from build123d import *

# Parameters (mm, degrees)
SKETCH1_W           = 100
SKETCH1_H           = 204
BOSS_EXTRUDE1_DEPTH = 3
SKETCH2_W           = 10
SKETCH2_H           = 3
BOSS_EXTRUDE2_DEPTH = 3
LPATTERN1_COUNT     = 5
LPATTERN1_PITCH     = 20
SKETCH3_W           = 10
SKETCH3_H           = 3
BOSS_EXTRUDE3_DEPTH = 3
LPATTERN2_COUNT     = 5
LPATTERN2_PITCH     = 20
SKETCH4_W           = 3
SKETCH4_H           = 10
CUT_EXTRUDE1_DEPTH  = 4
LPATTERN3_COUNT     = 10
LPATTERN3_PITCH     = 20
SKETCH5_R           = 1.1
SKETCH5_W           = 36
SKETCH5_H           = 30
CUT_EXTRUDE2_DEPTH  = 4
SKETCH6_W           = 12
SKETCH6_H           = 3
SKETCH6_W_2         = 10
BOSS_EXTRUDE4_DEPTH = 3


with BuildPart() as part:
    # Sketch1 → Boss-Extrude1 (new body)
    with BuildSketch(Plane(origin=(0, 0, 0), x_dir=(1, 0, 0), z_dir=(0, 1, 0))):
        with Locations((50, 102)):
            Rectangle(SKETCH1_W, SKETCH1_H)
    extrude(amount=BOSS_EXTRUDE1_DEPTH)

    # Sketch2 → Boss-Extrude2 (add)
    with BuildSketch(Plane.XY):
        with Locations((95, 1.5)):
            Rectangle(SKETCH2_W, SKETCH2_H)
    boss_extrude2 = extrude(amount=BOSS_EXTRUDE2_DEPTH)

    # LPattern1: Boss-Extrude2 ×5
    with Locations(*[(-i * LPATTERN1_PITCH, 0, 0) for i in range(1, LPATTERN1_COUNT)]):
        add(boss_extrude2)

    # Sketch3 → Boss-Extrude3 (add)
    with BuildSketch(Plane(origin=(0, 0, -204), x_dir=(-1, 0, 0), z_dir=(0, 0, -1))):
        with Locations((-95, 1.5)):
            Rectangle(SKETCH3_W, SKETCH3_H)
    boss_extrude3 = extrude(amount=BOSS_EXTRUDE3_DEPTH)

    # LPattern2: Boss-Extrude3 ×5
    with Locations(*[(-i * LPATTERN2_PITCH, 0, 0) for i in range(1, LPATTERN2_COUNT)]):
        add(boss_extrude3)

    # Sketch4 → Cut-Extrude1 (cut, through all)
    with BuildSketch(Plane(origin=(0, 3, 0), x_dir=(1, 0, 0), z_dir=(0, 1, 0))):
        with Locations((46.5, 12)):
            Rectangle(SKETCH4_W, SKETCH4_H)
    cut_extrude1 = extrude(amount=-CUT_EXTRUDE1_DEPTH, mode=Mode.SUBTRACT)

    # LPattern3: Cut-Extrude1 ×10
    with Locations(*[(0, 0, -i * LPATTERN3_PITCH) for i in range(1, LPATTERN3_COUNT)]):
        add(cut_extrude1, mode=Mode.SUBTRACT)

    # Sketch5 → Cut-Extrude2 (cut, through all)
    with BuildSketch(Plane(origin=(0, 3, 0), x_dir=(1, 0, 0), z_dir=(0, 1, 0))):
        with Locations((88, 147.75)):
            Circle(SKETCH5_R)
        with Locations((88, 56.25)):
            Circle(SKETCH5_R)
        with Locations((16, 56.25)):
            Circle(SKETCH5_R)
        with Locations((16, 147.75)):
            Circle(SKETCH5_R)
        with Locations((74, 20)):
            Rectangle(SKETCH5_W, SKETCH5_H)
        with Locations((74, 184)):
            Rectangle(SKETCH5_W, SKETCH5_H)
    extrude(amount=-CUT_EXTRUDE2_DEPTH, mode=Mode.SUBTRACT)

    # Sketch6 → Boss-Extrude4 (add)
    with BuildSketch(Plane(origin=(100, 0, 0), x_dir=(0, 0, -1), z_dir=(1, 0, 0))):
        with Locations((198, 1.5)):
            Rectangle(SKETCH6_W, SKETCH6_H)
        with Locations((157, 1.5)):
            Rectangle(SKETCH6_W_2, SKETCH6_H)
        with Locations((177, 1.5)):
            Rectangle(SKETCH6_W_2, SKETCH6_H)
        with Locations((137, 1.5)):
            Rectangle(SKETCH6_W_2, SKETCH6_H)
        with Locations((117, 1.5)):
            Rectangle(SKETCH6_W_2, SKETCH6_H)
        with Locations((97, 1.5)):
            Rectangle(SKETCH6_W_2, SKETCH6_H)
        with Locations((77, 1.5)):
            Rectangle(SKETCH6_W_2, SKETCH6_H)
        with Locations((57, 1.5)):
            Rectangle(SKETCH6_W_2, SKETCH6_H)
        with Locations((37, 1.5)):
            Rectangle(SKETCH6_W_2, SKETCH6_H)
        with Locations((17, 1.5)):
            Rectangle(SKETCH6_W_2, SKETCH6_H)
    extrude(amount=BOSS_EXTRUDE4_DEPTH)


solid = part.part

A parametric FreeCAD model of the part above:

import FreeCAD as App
import Part
import Sketcher

V = App.Vector
Q = App.Units.Quantity

doc = App.newDocument("Part")
body = doc.addObject("PartDesign::Body", "Body")

# Sketch on XZ plane
sketch1 = body.newObject("Sketcher::SketchObject", "Sketch")
sketch1.AttachmentSupport = (doc.getObject("XZ_Plane"), [""])
sketch1.MapMode = "FlatFace"
sketch1.addGeometry([
    Part.LineSegment(V(0, -204, 0), V(0, 0, 0)),
    Part.LineSegment(V(0, 0, 0), V(100, 0, 0)),
    Part.LineSegment(V(100, 0, 0), V(100, -204, 0)),
    Part.LineSegment(V(100, -204, 0), V(0, -204, 0)),
], False)
sketch1.addConstraint([
    Sketcher.Constraint("Coincident", 0, 2, 1, 1),
    Sketcher.Constraint("Coincident", 1, 2, 2, 1),
    Sketcher.Constraint("Coincident", 2, 2, 3, 1),
    Sketcher.Constraint("Coincident", 3, 2, 0, 1),
    Sketcher.Constraint("Vertical", 0),
    Sketcher.Constraint("Horizontal", 1),
    Sketcher.Constraint("Vertical", 2),
    Sketcher.Constraint("Horizontal", 3),
    Sketcher.Constraint("Coincident", 0, 2, -1, 1),
    Sketcher.Constraint("DistanceX", 1, 1, 1, 2, Q("100 mm")),
    Sketcher.Constraint("DistanceY", 0, 1, 0, 2, Q("204 mm")),
])
pad1 = body.newObject("PartDesign::Pad", "Pad")
pad1.Profile = sketch1
pad1.Length = 3
pad1.Reversed = True

# Sketch on XY plane
sketch2 = body.newObject("Sketcher::SketchObject", "Sketch001")
sketch2.AttachmentSupport = (doc.getObject("XY_Plane"), [""])
sketch2.MapMode = "FlatFace"
sketch2.addGeometry([
    Part.LineSegment(V(90, 3, 0), V(90, 0, 0)),
    Part.LineSegment(V(90, 0, 0), V(100, 0, 0)),
    Part.LineSegment(V(100, 0, 0), V(100, 3, 0)),
    Part.LineSegment(V(100, 3, 0), V(90, 3, 0)),
], False)
sketch2.addConstraint([
    Sketcher.Constraint("Coincident", 0, 2, 1, 1),
    Sketcher.Constraint("Coincident", 1, 2, 2, 1),
    Sketcher.Constraint("Coincident", 2, 2, 3, 1),
    Sketcher.Constraint("Coincident", 3, 2, 0, 1),
    Sketcher.Constraint("Vertical", 0),
    Sketcher.Constraint("Horizontal", 1),
    Sketcher.Constraint("Vertical", 2),
    Sketcher.Constraint("Horizontal", 3),
    Sketcher.Constraint("PointOnObject", 0, 2, -1),
    Sketcher.Constraint("DistanceX", 1, 1, 1, 2, Q("10 mm")),
    Sketcher.Constraint("DistanceY", 0, 2, 0, 1, Q("3 mm")),
    Sketcher.Constraint("DistanceX", -1, 1, 0, 2, Q("90 mm")),
])
pad2 = body.newObject("PartDesign::Pad", "Pad001")
pad2.Profile = sketch2
pad2.Length = 3
doc.recompute()

linearpattern = body.newObject("PartDesign::LinearPattern", "LinearPattern")
linearpattern.Originals = [pad2]
linearpattern.Direction = (doc.getObject("X_Axis"), [""])
linearpattern.Mode = "offset"
linearpattern.Offset = 20
linearpattern.Occurrences = 5
linearpattern.Reversed = True
body.Tip = linearpattern

# Sketch on XY plane
sketch3 = body.newObject("Sketcher::SketchObject", "Sketch002")
sketch3.AttachmentSupport = (doc.getObject("XY_Plane"), [""])
sketch3.MapMode = "FlatFace"
sketch3.AttachmentOffset = App.Placement(V(0, 0, -204), App.Rotation())
sketch3.addGeometry([
    Part.LineSegment(V(100, 3, 0), V(100, 0, 0)),
    Part.LineSegment(V(100, 0, 0), V(90, 0, 0)),
    Part.LineSegment(V(90, 0, 0), V(90, 3, 0)),
    Part.LineSegment(V(90, 3, 0), V(100, 3, 0)),
], False)
sketch3.addConstraint([
    Sketcher.Constraint("Coincident", 0, 2, 1, 1),
    Sketcher.Constraint("Coincident", 1, 2, 2, 1),
    Sketcher.Constraint("Coincident", 2, 2, 3, 1),
    Sketcher.Constraint("Coincident", 3, 2, 0, 1),
    Sketcher.Constraint("Vertical", 0),
    Sketcher.Constraint("Horizontal", 1),
    Sketcher.Constraint("Vertical", 2),
    Sketcher.Constraint("Horizontal", 3),
    Sketcher.Constraint("PointOnObject", 0, 2, -1),
    Sketcher.Constraint("DistanceX", 1, 2, 1, 1, Q("10 mm")),
    Sketcher.Constraint("DistanceY", 0, 2, 0, 1, Q("3 mm")),
    Sketcher.Constraint("DistanceX", -1, 1, 0, 2, Q("100 mm")),
])
pad3 = body.newObject("PartDesign::Pad", "Pad002")
pad3.Profile = sketch3
pad3.Length = 3
pad3.Reversed = True
doc.recompute()

linearpattern2 = body.newObject("PartDesign::LinearPattern", "LinearPattern001")
linearpattern2.Originals = [pad3]
linearpattern2.Direction = (doc.getObject("X_Axis"), [""])
linearpattern2.Mode = "offset"
linearpattern2.Offset = 20
linearpattern2.Occurrences = 5
linearpattern2.Reversed = True
body.Tip = linearpattern2

# Sketch on XZ plane
sketch4 = body.newObject("Sketcher::SketchObject", "Sketch003")
sketch4.AttachmentSupport = (doc.getObject("XZ_Plane"), [""])
sketch4.MapMode = "FlatFace"
sketch4.AttachmentOffset = App.Placement(V(0, 0, -3), App.Rotation())
sketch4.addGeometry([
    Part.LineSegment(V(45, -17, 0), V(45, -7, 0)),
    Part.LineSegment(V(45, -7, 0), V(48, -7, 0)),
    Part.LineSegment(V(48, -7, 0), V(48, -17, 0)),
    Part.LineSegment(V(48, -17, 0), V(45, -17, 0)),
], False)
sketch4.addConstraint([
    Sketcher.Constraint("Coincident", 0, 2, 1, 1),
    Sketcher.Constraint("Coincident", 1, 2, 2, 1),
    Sketcher.Constraint("Coincident", 2, 2, 3, 1),
    Sketcher.Constraint("Coincident", 3, 2, 0, 1),
    Sketcher.Constraint("Vertical", 0),
    Sketcher.Constraint("Horizontal", 1),
    Sketcher.Constraint("Vertical", 2),
    Sketcher.Constraint("Horizontal", 3),
    Sketcher.Constraint("DistanceX", 1, 1, 1, 2, Q("3 mm")),
    Sketcher.Constraint("DistanceY", 0, 1, 0, 2, Q("10 mm")),
    Sketcher.Constraint("DistanceX", -1, 1, 0, 2, Q("45 mm")),
    Sketcher.Constraint("DistanceY", 0, 2, -1, 1, Q("7 mm")),
])
pocket1 = body.newObject("PartDesign::Pocket", "Pocket")
pocket1.Profile = sketch4
pocket1.Type = "ThroughAll"
pocket1.Reversed = True
doc.recompute()

linearpattern3 = body.newObject("PartDesign::LinearPattern", "LinearPattern002")
linearpattern3.Originals = [pocket1]
linearpattern3.Direction = (doc.getObject("Z_Axis"), [""])
linearpattern3.Mode = "offset"
linearpattern3.Offset = 20
linearpattern3.Occurrences = 10
linearpattern3.Reversed = True
body.Tip = linearpattern3

# Sketch on XZ plane
sketch5 = body.newObject("Sketcher::SketchObject", "Sketch004")
sketch5.AttachmentSupport = (doc.getObject("XZ_Plane"), [""])
sketch5.MapMode = "FlatFace"
sketch5.AttachmentOffset = App.Placement(V(0, 0, -3), App.Rotation())
sketch5.addGeometry([
    Part.Circle(V(88, -147.8, 0), V(0, 0, 1), 1.1),  # 0
    Part.Circle(V(88, -56.2, 0), V(0, 0, 1), 1.1),  # 1
    Part.Circle(V(16, -56.2, 0), V(0, 0, 1), 1.1),  # 2
    Part.Circle(V(16, -147.8, 0), V(0, 0, 1), 1.1),  # 3
    Part.LineSegment(V(56, -35, 0), V(56, -5, 0)),  # 4
    Part.LineSegment(V(56, -5, 0), V(92, -5, 0)),  # 5
    Part.LineSegment(V(92, -5, 0), V(92, -35, 0)),  # 6
    Part.LineSegment(V(92, -35, 0), V(56, -35, 0)),  # 7
    Part.LineSegment(V(56, -199, 0), V(56, -169, 0)),  # 8
    Part.LineSegment(V(56, -169, 0), V(92, -169, 0)),  # 9
    Part.LineSegment(V(92, -169, 0), V(92, -199, 0)),  # 10
    Part.LineSegment(V(92, -199, 0), V(56, -199, 0)),  # 11
], False)
sketch5.addConstraint([
    Sketcher.Constraint("Coincident", 4, 2, 5, 1),
    Sketcher.Constraint("Coincident", 5, 2, 6, 1),
    Sketcher.Constraint("Coincident", 6, 2, 7, 1),
    Sketcher.Constraint("Coincident", 7, 2, 4, 1),
    Sketcher.Constraint("Coincident", 8, 2, 9, 1),
    Sketcher.Constraint("Coincident", 9, 2, 10, 1),
    Sketcher.Constraint("Coincident", 10, 2, 11, 1),
    Sketcher.Constraint("Coincident", 11, 2, 8, 1),
    Sketcher.Constraint("Vertical", 4),
    Sketcher.Constraint("Horizontal", 5),
    Sketcher.Constraint("Vertical", 6),
    Sketcher.Constraint("Horizontal", 7),
    Sketcher.Constraint("Vertical", 8),
    Sketcher.Constraint("Horizontal", 9),
    Sketcher.Constraint("Vertical", 10),
    Sketcher.Constraint("Horizontal", 11),
    Sketcher.Constraint("Equal", 0, 1),
    Sketcher.Constraint("Equal", 1, 2),
    Sketcher.Constraint("Equal", 2, 3),
    Sketcher.Constraint("Horizontal", 1, 3, 2, 3),
    Sketcher.Constraint("Horizontal", 0, 3, 3, 3),
    Sketcher.Constraint("Vertical", 0, 3, 1, 3),
    Sketcher.Constraint("Vertical", 2, 3, 3, 3),
    Sketcher.Constraint("Vertical", 7, 2, 8, 2),
    Sketcher.Constraint("Vertical", 6, 2, 9, 2),
    Sketcher.Constraint("Equal", 6, 8),
    Sketcher.Constraint("Diameter", 0, Q("2.2 mm")),
    Sketcher.Constraint("DistanceX", 5, 1, 5, 2, Q("36 mm")),
    Sketcher.Constraint("DistanceY", 4, 1, 4, 2, Q("30 mm")),
    Sketcher.Constraint("DistanceX", -1, 1, 0, 3, Q("88 mm")),
    Sketcher.Constraint("DistanceX", -1, 1, 2, 3, Q("16 mm")),
    Sketcher.Constraint("DistanceX", -1, 1, 4, 2, Q("56 mm")),
    Sketcher.Constraint("DistanceY", 4, 2, -1, 1, Q("5 mm")),
    Sketcher.Constraint("DistanceY", 8, 2, -1, 1, Q("169 mm")),
    Sketcher.Constraint("DistanceY", 0, 3, 1, 3, Q("91.5 mm")),
    Sketcher.Constraint("DistanceY", 0, 3, -1, 1, Q("147.75 mm")),
])
pocket2 = body.newObject("PartDesign::Pocket", "Pocket001")
pocket2.Profile = sketch5
pocket2.Type = "ThroughAll"
pocket2.Reversed = True

# Sketch on YZ plane
sketch6 = body.newObject("Sketcher::SketchObject", "Sketch005")
sketch6.AttachmentSupport = (doc.getObject("YZ_Plane"), [""])
sketch6.MapMode = "FlatFace"
sketch6.AttachmentOffset = App.Placement(V(0, 0, 100), App.Rotation())
sketch6.addGeometry([
    Part.LineSegment(V(3, -192, 0), V(0, -192, 0)),  # 0
    Part.LineSegment(V(0, -192, 0), V(0, -204, 0)),  # 1
    Part.LineSegment(V(0, -204, 0), V(3, -204, 0)),  # 2
    Part.LineSegment(V(3, -204, 0), V(3, -192, 0)),  # 3
    Part.LineSegment(V(3, -152, 0), V(0, -152, 0)),  # 4
    Part.LineSegment(V(0, -152, 0), V(0, -162, 0)),  # 5
    Part.LineSegment(V(0, -162, 0), V(3, -162, 0)),  # 6
    Part.LineSegment(V(3, -162, 0), V(3, -152, 0)),  # 7
    Part.LineSegment(V(3, -172, 0), V(0, -172, 0)),  # 8
    Part.LineSegment(V(0, -172, 0), V(0, -182, 0)),  # 9
    Part.LineSegment(V(0, -182, 0), V(3, -182, 0)),  # 10
    Part.LineSegment(V(3, -182, 0), V(3, -172, 0)),  # 11
    Part.LineSegment(V(3, -132, 0), V(0, -132, 0)),  # 12
    Part.LineSegment(V(0, -132, 0), V(0, -142, 0)),  # 13
    Part.LineSegment(V(0, -142, 0), V(3, -142, 0)),  # 14
    Part.LineSegment(V(3, -142, 0), V(3, -132, 0)),  # 15
    Part.LineSegment(V(3, -112, 0), V(0, -112, 0)),  # 16
    Part.LineSegment(V(0, -112, 0), V(0, -122, 0)),  # 17
    Part.LineSegment(V(0, -122, 0), V(3, -122, 0)),  # 18
    Part.LineSegment(V(3, -122, 0), V(3, -112, 0)),  # 19
    Part.LineSegment(V(3, -92, 0), V(0, -92, 0)),  # 20
    Part.LineSegment(V(0, -92, 0), V(0, -102, 0)),  # 21
    Part.LineSegment(V(0, -102, 0), V(3, -102, 0)),  # 22
    Part.LineSegment(V(3, -102, 0), V(3, -92, 0)),  # 23
    Part.LineSegment(V(3, -72, 0), V(0, -72, 0)),  # 24
    Part.LineSegment(V(0, -72, 0), V(0, -82, 0)),  # 25
    Part.LineSegment(V(0, -82, 0), V(3, -82, 0)),  # 26
    Part.LineSegment(V(3, -82, 0), V(3, -72, 0)),  # 27
    Part.LineSegment(V(3, -52, 0), V(0, -52, 0)),  # 28
    Part.LineSegment(V(0, -52, 0), V(0, -62, 0)),  # 29
    Part.LineSegment(V(0, -62, 0), V(3, -62, 0)),  # 30
    Part.LineSegment(V(3, -62, 0), V(3, -52, 0)),  # 31
    Part.LineSegment(V(3, -32, 0), V(0, -32, 0)),  # 32
    Part.LineSegment(V(0, -32, 0), V(0, -42, 0)),  # 33
    Part.LineSegment(V(0, -42, 0), V(3, -42, 0)),  # 34
    Part.LineSegment(V(3, -42, 0), V(3, -32, 0)),  # 35
    Part.LineSegment(V(3, -12, 0), V(0, -12, 0)),  # 36
    Part.LineSegment(V(0, -12, 0), V(0, -22, 0)),  # 37
    Part.LineSegment(V(0, -22, 0), V(3, -22, 0)),  # 38
    Part.LineSegment(V(3, -22, 0), V(3, -12, 0)),  # 39
], False)
sketch6.addConstraint([
    Sketcher.Constraint("Coincident", 0, 2, 1, 1),
    Sketcher.Constraint("Coincident", 1, 2, 2, 1),
    Sketcher.Constraint("Coincident", 2, 2, 3, 1),
    Sketcher.Constraint("Coincident", 3, 2, 0, 1),
    Sketcher.Constraint("Coincident", 4, 2, 5, 1),
    Sketcher.Constraint("Coincident", 5, 2, 6, 1),
    Sketcher.Constraint("Coincident", 6, 2, 7, 1),
    Sketcher.Constraint("Coincident", 7, 2, 4, 1),
    Sketcher.Constraint("Coincident", 8, 2, 9, 1),
    Sketcher.Constraint("Coincident", 9, 2, 10, 1),
    Sketcher.Constraint("Coincident", 10, 2, 11, 1),
    Sketcher.Constraint("Coincident", 11, 2, 8, 1),
    Sketcher.Constraint("Coincident", 12, 2, 13, 1),
    Sketcher.Constraint("Coincident", 13, 2, 14, 1),
    Sketcher.Constraint("Coincident", 14, 2, 15, 1),
    Sketcher.Constraint("Coincident", 15, 2, 12, 1),
    Sketcher.Constraint("Coincident", 16, 2, 17, 1),
    Sketcher.Constraint("Coincident", 17, 2, 18, 1),
    Sketcher.Constraint("Coincident", 18, 2, 19, 1),
    Sketcher.Constraint("Coincident", 19, 2, 16, 1),
    Sketcher.Constraint("Coincident", 20, 2, 21, 1),
    Sketcher.Constraint("Coincident", 21, 2, 22, 1),
    Sketcher.Constraint("Coincident", 22, 2, 23, 1),
    Sketcher.Constraint("Coincident", 23, 2, 20, 1),
    Sketcher.Constraint("Coincident", 24, 2, 25, 1),
    Sketcher.Constraint("Coincident", 25, 2, 26, 1),
    Sketcher.Constraint("Coincident", 26, 2, 27, 1),
    Sketcher.Constraint("Coincident", 27, 2, 24, 1),
    Sketcher.Constraint("Coincident", 28, 2, 29, 1),
    Sketcher.Constraint("Coincident", 29, 2, 30, 1),
    Sketcher.Constraint("Coincident", 30, 2, 31, 1),
    Sketcher.Constraint("Coincident", 31, 2, 28, 1),
    Sketcher.Constraint("Coincident", 32, 2, 33, 1),
    Sketcher.Constraint("Coincident", 33, 2, 34, 1),
    Sketcher.Constraint("Coincident", 34, 2, 35, 1),
    Sketcher.Constraint("Coincident", 35, 2, 32, 1),
    Sketcher.Constraint("Coincident", 36, 2, 37, 1),
    Sketcher.Constraint("Coincident", 37, 2, 38, 1),
    Sketcher.Constraint("Coincident", 38, 2, 39, 1),
    Sketcher.Constraint("Coincident", 39, 2, 36, 1),
    Sketcher.Constraint("Horizontal", 0),
    Sketcher.Constraint("Vertical", 1),
    Sketcher.Constraint("Horizontal", 2),
    Sketcher.Constraint("Vertical", 3),
    Sketcher.Constraint("Horizontal", 4),
    Sketcher.Constraint("Vertical", 5),
    Sketcher.Constraint("Horizontal", 6),
    Sketcher.Constraint("Vertical", 7),
    Sketcher.Constraint("Horizontal", 8),
    Sketcher.Constraint("Vertical", 9),
    Sketcher.Constraint("Horizontal", 10),
    Sketcher.Constraint("Vertical", 11),
    Sketcher.Constraint("Horizontal", 12),
    Sketcher.Constraint("Vertical", 13),
    Sketcher.Constraint("Horizontal", 14),
    Sketcher.Constraint("Vertical", 15),
    Sketcher.Constraint("Horizontal", 16),
    Sketcher.Constraint("Vertical", 17),
    Sketcher.Constraint("Horizontal", 18),
    Sketcher.Constraint("Vertical", 19),
    Sketcher.Constraint("Horizontal", 20),
    Sketcher.Constraint("Vertical", 21),
    Sketcher.Constraint("Horizontal", 22),
    Sketcher.Constraint("Vertical", 23),
    Sketcher.Constraint("Horizontal", 24),
    Sketcher.Constraint("Vertical", 25),
    Sketcher.Constraint("Horizontal", 26),
    Sketcher.Constraint("Vertical", 27),
    Sketcher.Constraint("Horizontal", 28),
    Sketcher.Constraint("Vertical", 29),
    Sketcher.Constraint("Horizontal", 30),
    Sketcher.Constraint("Vertical", 31),
    Sketcher.Constraint("Horizontal", 32),
    Sketcher.Constraint("Vertical", 33),
    Sketcher.Constraint("Horizontal", 34),
    Sketcher.Constraint("Vertical", 35),
    Sketcher.Constraint("Horizontal", 36),
    Sketcher.Constraint("Vertical", 37),
    Sketcher.Constraint("Horizontal", 38),
    Sketcher.Constraint("Vertical", 39),
    Sketcher.Constraint("PointOnObject", 0, 2, -2),
    Sketcher.Constraint("PointOnObject", 4, 2, -2),
    Sketcher.Constraint("PointOnObject", 8, 2, -2),
    Sketcher.Constraint("PointOnObject", 12, 2, -2),
    Sketcher.Constraint("PointOnObject", 16, 2, -2),
    Sketcher.Constraint("PointOnObject", 20, 2, -2),
    Sketcher.Constraint("PointOnObject", 24, 2, -2),
    Sketcher.Constraint("PointOnObject", 28, 2, -2),
    Sketcher.Constraint("PointOnObject", 32, 2, -2),
    Sketcher.Constraint("PointOnObject", 36, 2, -2),
    Sketcher.Constraint("Vertical", 3, 2, 6, 2),
    Sketcher.Constraint("Vertical", 7, 2, 10, 2),
    Sketcher.Constraint("Vertical", 11, 2, 14, 2),
    Sketcher.Constraint("Vertical", 15, 2, 18, 2),
    Sketcher.Constraint("Vertical", 19, 2, 22, 2),
    Sketcher.Constraint("Vertical", 23, 2, 26, 2),
    Sketcher.Constraint("Vertical", 27, 2, 30, 2),
    Sketcher.Constraint("Vertical", 31, 2, 34, 2),
    Sketcher.Constraint("Vertical", 35, 2, 38, 2),
    Sketcher.Constraint("Equal", 7, 9),
    Sketcher.Constraint("Equal", 11, 13),
    Sketcher.Constraint("Equal", 15, 17),
    Sketcher.Constraint("Equal", 19, 21),
    Sketcher.Constraint("Equal", 23, 25),
    Sketcher.Constraint("Equal", 27, 29),
    Sketcher.Constraint("Equal", 31, 33),
    Sketcher.Constraint("Equal", 35, 37),
    Sketcher.Constraint("DistanceX", 0, 2, 0, 1, Q("3 mm")),
    Sketcher.Constraint("DistanceY", 1, 2, 1, 1, Q("12 mm")),
    Sketcher.Constraint("DistanceY", 5, 2, 5, 1, Q("10 mm")),
    Sketcher.Constraint("DistanceY", 0, 2, -1, 1, Q("192 mm")),
    Sketcher.Constraint("DistanceY", 4, 2, -1, 1, Q("152 mm")),
    Sketcher.Constraint("DistanceY", 8, 2, -1, 1, Q("172 mm")),
    Sketcher.Constraint("DistanceY", 12, 2, -1, 1, Q("132 mm")),
    Sketcher.Constraint("DistanceY", 16, 2, -1, 1, Q("112 mm")),
    Sketcher.Constraint("DistanceY", 20, 2, -1, 1, Q("92 mm")),
    Sketcher.Constraint("DistanceY", 24, 2, -1, 1, Q("72 mm")),
    Sketcher.Constraint("DistanceY", 28, 2, -1, 1, Q("52 mm")),
    Sketcher.Constraint("DistanceY", 32, 2, -1, 1, Q("32 mm")),
    Sketcher.Constraint("DistanceY", 36, 2, -1, 1, Q("12 mm")),
])
pad4 = body.newObject("PartDesign::Pad", "Pad003")
pad4.Profile = sketch6
pad4.Length = 3

doc.recompute()
